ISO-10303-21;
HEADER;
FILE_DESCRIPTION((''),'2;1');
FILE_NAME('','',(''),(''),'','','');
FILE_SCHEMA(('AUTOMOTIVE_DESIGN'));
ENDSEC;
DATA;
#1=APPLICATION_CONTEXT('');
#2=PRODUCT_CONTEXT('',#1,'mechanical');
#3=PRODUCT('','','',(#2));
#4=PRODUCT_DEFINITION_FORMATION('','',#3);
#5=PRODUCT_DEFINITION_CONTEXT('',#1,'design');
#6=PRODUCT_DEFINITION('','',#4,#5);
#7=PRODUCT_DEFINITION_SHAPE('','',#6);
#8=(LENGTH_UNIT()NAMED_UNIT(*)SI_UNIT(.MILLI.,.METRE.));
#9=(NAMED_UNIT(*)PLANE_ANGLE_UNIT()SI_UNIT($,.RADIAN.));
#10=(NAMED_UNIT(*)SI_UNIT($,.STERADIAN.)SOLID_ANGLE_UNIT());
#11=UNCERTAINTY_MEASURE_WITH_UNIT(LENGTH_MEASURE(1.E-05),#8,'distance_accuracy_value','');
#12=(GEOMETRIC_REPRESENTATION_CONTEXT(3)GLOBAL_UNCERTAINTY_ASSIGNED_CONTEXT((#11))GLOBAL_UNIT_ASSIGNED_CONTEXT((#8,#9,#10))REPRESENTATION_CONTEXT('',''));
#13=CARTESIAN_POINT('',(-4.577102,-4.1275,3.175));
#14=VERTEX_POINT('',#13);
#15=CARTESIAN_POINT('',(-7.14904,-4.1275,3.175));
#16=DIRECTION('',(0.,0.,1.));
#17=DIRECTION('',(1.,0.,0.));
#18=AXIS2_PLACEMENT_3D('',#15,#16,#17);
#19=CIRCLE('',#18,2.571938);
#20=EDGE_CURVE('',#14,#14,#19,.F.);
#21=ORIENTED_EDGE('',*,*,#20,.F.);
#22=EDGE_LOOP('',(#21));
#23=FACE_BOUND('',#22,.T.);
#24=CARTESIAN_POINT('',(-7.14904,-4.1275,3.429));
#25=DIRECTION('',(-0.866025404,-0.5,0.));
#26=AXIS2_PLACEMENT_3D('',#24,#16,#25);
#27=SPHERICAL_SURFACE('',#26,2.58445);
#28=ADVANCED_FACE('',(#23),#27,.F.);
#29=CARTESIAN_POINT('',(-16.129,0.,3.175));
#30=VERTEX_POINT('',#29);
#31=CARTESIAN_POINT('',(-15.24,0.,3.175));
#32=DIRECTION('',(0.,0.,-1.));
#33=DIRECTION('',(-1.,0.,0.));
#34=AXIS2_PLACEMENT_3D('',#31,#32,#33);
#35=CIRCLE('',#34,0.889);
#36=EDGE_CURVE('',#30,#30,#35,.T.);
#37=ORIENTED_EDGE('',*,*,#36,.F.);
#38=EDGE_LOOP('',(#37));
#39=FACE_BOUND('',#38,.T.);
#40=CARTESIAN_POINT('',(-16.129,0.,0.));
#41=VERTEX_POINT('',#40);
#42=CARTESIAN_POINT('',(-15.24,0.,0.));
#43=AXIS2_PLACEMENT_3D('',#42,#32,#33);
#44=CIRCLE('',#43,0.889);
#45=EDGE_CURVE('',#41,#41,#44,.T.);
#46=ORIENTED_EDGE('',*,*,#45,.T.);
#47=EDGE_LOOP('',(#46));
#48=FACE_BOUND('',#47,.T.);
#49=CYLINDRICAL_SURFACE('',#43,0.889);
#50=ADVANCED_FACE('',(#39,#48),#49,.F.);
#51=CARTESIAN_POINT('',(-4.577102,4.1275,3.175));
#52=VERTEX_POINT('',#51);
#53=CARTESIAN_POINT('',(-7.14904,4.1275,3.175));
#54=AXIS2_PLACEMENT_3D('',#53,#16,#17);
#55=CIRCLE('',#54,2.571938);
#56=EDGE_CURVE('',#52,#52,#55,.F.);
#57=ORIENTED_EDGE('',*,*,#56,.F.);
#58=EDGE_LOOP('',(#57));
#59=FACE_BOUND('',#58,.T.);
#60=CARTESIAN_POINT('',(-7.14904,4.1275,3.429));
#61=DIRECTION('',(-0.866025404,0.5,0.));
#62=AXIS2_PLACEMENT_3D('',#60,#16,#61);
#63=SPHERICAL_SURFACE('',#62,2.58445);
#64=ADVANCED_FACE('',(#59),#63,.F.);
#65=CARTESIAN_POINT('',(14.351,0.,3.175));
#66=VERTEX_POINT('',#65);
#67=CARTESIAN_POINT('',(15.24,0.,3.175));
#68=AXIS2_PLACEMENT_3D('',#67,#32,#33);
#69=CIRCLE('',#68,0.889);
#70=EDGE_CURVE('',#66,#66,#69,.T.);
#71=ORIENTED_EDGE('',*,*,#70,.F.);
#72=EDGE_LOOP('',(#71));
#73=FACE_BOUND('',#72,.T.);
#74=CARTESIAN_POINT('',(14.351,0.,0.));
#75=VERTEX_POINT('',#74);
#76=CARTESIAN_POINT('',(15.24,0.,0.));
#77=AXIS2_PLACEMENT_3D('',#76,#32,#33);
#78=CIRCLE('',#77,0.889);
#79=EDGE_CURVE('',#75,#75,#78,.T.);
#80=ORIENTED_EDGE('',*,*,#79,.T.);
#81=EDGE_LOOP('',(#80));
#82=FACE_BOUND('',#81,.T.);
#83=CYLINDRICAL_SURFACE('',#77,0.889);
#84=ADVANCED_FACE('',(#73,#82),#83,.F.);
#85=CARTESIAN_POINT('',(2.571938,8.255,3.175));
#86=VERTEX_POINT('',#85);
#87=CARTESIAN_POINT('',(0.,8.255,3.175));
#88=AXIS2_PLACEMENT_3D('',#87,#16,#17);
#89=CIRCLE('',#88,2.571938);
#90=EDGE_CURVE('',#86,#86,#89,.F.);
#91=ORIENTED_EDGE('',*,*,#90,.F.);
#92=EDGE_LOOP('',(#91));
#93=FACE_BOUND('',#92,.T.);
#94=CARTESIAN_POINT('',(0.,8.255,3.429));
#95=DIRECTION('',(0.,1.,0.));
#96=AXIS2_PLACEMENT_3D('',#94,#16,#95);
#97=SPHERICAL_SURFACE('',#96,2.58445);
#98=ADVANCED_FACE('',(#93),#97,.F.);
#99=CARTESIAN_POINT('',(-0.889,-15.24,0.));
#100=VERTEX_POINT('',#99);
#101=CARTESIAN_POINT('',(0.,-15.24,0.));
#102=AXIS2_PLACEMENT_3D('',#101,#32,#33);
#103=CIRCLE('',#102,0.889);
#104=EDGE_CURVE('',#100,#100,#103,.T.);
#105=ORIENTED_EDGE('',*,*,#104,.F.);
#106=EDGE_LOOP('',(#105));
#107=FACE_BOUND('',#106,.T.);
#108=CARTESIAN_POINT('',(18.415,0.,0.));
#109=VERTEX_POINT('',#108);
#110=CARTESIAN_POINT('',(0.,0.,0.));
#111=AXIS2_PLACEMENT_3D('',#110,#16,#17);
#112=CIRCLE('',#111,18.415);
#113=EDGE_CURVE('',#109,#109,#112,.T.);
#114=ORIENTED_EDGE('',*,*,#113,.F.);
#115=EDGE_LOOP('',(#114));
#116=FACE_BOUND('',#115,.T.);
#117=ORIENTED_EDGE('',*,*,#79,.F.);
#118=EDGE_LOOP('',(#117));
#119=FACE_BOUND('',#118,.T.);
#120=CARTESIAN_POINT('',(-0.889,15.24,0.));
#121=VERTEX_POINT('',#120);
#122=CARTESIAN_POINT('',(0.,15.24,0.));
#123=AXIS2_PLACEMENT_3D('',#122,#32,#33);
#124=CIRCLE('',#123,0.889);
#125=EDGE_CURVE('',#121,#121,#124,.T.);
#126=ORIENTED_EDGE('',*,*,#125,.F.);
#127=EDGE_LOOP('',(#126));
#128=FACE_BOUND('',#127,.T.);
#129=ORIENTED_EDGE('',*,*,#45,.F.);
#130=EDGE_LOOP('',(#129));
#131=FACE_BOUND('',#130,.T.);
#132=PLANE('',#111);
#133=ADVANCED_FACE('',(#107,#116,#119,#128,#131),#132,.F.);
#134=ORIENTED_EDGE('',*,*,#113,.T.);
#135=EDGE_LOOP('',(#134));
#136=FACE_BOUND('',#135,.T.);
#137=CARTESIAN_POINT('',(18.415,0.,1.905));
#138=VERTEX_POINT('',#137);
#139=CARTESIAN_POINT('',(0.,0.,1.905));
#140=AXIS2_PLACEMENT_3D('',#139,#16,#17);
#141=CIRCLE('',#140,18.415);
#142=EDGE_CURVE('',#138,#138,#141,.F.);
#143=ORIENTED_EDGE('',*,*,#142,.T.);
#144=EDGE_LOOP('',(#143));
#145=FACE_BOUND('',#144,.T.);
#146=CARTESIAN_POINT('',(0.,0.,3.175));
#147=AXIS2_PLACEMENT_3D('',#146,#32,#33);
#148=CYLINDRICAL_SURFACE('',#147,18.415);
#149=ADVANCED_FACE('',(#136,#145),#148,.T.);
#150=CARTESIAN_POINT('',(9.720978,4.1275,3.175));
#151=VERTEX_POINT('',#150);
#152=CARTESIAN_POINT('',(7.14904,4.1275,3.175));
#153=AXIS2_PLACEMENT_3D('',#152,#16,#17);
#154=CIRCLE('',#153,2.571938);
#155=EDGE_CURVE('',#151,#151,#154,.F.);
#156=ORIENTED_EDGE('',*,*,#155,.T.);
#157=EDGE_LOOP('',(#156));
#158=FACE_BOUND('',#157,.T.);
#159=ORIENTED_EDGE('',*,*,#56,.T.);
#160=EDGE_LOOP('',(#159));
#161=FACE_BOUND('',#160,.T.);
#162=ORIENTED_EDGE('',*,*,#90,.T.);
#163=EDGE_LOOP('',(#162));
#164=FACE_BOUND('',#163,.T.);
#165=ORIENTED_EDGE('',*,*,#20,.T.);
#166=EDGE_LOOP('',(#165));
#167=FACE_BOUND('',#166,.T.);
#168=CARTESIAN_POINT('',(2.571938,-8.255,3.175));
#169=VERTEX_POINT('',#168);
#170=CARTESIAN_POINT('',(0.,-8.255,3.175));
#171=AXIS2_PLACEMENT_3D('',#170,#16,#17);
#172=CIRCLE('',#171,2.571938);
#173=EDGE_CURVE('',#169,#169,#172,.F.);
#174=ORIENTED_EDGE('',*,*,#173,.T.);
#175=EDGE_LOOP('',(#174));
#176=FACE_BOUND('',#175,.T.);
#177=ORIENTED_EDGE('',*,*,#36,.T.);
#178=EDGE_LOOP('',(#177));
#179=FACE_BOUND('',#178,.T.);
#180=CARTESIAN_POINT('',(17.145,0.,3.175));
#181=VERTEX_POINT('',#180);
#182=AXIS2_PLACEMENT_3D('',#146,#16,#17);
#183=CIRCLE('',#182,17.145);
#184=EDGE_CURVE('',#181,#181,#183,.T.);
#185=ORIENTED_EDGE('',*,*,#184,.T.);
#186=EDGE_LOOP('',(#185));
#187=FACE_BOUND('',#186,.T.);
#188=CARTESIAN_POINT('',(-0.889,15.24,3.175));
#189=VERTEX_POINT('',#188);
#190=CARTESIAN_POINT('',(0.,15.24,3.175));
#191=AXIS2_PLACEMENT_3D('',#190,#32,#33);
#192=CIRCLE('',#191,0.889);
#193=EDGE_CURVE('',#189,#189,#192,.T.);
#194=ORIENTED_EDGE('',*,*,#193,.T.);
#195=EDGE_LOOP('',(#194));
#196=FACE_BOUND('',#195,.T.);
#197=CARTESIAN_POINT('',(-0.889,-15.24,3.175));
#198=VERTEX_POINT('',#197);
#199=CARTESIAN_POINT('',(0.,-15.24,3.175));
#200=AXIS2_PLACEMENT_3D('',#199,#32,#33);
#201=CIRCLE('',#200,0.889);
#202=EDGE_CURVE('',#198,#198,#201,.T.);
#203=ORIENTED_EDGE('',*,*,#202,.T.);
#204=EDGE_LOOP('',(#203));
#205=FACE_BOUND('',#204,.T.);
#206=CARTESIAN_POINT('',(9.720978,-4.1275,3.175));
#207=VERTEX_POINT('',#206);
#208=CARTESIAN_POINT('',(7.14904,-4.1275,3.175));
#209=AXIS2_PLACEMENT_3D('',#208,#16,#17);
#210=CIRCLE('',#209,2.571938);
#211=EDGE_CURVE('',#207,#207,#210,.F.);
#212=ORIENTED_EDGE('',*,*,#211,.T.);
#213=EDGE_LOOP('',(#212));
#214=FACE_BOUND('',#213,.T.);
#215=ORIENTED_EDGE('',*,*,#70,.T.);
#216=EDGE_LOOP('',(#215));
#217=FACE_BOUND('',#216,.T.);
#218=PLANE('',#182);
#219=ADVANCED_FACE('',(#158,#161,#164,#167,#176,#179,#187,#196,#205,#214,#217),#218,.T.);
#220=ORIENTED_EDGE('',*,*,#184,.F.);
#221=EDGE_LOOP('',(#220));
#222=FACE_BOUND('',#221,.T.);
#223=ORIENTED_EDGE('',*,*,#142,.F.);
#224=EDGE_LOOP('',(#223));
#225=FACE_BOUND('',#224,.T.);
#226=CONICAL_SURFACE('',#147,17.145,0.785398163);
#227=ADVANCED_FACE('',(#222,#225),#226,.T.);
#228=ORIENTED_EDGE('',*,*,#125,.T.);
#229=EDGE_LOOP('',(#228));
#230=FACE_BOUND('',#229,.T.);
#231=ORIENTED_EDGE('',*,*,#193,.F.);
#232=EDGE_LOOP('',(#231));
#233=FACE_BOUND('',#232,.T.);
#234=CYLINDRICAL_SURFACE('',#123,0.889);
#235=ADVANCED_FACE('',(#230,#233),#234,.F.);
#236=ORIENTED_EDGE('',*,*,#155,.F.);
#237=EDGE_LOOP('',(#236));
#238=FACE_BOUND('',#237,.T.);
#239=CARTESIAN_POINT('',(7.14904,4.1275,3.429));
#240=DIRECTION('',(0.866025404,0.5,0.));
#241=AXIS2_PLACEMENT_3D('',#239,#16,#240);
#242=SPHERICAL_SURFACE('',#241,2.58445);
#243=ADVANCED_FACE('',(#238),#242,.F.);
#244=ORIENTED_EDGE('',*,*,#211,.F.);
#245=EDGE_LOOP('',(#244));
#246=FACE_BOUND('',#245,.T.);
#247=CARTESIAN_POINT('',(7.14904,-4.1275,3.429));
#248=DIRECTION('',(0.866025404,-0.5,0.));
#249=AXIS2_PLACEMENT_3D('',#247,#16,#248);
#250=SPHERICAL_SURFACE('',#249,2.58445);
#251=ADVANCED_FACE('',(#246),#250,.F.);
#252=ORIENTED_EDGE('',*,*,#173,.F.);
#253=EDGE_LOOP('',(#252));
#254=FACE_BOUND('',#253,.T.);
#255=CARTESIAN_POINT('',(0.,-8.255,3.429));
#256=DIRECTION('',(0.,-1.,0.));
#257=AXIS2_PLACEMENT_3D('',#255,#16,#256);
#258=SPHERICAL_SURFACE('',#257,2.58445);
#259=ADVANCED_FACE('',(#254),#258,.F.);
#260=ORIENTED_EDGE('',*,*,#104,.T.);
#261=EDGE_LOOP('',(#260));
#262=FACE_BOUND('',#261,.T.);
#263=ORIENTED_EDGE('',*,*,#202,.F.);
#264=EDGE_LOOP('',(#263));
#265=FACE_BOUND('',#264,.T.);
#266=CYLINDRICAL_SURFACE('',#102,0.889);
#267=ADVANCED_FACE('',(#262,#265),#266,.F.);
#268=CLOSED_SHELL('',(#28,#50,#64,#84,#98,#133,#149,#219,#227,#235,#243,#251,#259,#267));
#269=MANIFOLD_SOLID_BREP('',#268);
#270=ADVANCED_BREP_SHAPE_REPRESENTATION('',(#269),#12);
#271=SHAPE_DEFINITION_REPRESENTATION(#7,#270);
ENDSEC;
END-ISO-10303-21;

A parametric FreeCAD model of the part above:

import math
import FreeCAD as App
import Part
import Sketcher
Q = App.Units.Quantity


def edges_at(feature, points):
    """Names of the edges that pass closest to the given points."""
    edges = feature.Shape.Edges
    near = lambda p: min(range(len(edges)), key=lambda i: edges[i].distToShape(Part.Vertex(*p))[0])
    return sorted({f"Edge{near(p) + 1}" for p in points})

doc = App.newDocument("Part")
body = doc.addObject("PartDesign::Body", "Body")

sketch1 = body.newObject("Sketcher::SketchObject", "Sketch")
sketch1.AttachmentSupport = (doc.getObject("XY_Plane"), [""])
sketch1.MapMode = "FlatFace"
sketch1.addGeometry(Part.Circle(App.Vector(0, 0, 0), App.Vector(0, 0, 1), 18), False)
sketch1.addConstraint([
    Sketcher.Constraint("Coincident", 0, 3, -1, 1),
    Sketcher.Constraint("Diameter", 0, Q("1.45 in")),
])
pad1 = body.newObject("PartDesign::Pad", "Pad")
pad1.Profile = sketch1
pad1.Length = Q("0.125 in")

sketch2 = body.newObject("Sketcher::SketchObject", "Sketch001")
sketch2.AttachmentSupport = (doc.getObject("YZ_Plane"), [""])
sketch2.MapMode = "FlatFace"
sketch2.addGeometry([
    Part.LineSegment(App.Vector(8.3, 6, 0), App.Vector(8.3, 0.8, 0)),
    Part.ArcOfCircle(Part.Circle(App.Vector(8.3, 3.4, 0), App.Vector(0, 0, 1), 2.6), math.radians(-90), math.radians(90)),
], False)
sketch2.addGeometry(Part.LineSegment(App.Vector(8.3, 6, 0), App.Vector(8.3, 0.8, 0)), True)
sketch2.addConstraint([
    Sketcher.Constraint("Coincident", 0, 1, 1, 2),
    Sketcher.Constraint("Coincident", 1, 1, 0, 2),
    Sketcher.Constraint("Vertical", 0),
    Sketcher.Constraint("Vertical", 2),
    Sketcher.Constraint("Coincident", 2, 1, 0, 1),
    Sketcher.Constraint("Vertical", 1, 3, 0, 1),
    Sketcher.Constraint("Equal", 0, 2),
    Sketcher.Constraint("DistanceY", 0, 2, 0, 1, Q("0.2035 in")),
    Sketcher.Constraint("DistanceX", -1, 1, 1, 3, Q("0.325 in")),
    Sketcher.Constraint("DistanceY", -1, 1, 1, 3, Q("0.135 in")),
])
groove = body.newObject("PartDesign::Groove", "Groove")
groove.Profile = sketch2
groove.ReferenceAxis = (sketch2, ["Axis0"])
groove.Angle = 360
doc.recompute()

polarpattern = body.newObject("PartDesign::PolarPattern", "PolarPattern")
polarpattern.Originals = [groove]
polarpattern.Axis = (doc.getObject("Z_Axis"), [""])
polarpattern.Angle = 360
polarpattern.Occurrences = 6
body.Tip = polarpattern

sketch3 = body.newObject("Sketcher::SketchObject", "Sketch002")
sketch3.AttachmentSupport = (doc.getObject("XY_Plane"), [""])
sketch3.MapMode = "FlatFace"
sketch3.addGeometry([
    Part.Circle(App.Vector(0, 15.2, 0), App.Vector(0, 0, 1), 0.9),
    Part.Circle(App.Vector(-15.2, 0, 0), App.Vector(0, 0, 1), 0.9),
    Part.Circle(App.Vector(0, -15.2, 0), App.Vector(0, 0, 1), 0.9),
    Part.Circle(App.Vector(15.2, 0, 0), App.Vector(0, 0, 1), 0.9),
], False)
sketch3.addConstraint([
    Sketcher.Constraint("Equal", 0, 1),
    Sketcher.Constraint("Equal", 1, 2),
    Sketcher.Constraint("Equal", 2, 3),
    Sketcher.Constraint("Symmetric", 0, 3, 2, 3, -1, 1),
    Sketcher.Constraint("Symmetric", 1, 3, 3, 3, -1, 1),
    Sketcher.Constraint("PointOnObject", 0, 3, -2),
    Sketcher.Constraint("PointOnObject", 1, 3, -1),
    Sketcher.Constraint("Diameter", 0, Q("0.07 in")),
    Sketcher.Constraint("DistanceY", -1, 1, 0, 3, Q("0.6 in")),
    Sketcher.Constraint("DistanceX", 1, 3, -1, 1, Q("0.6 in")),
])
doc.recompute()
hole = body.newObject("PartDesign::Hole", "Hole")
hole.Profile = sketch3
hole.ThreadType = "None"
hole.Diameter = Q("0.07 in")
hole.DepthType = "ThroughAll"
hole.Reversed = True
doc.recompute()

chamfer = body.newObject("PartDesign::Chamfer", "Chamfer")
chamfer.Base = (hole, edges_at(hole, [(-18.415, 0, 3.175)]))
chamfer.Size = Q("0.05 in")

doc.recompute()
